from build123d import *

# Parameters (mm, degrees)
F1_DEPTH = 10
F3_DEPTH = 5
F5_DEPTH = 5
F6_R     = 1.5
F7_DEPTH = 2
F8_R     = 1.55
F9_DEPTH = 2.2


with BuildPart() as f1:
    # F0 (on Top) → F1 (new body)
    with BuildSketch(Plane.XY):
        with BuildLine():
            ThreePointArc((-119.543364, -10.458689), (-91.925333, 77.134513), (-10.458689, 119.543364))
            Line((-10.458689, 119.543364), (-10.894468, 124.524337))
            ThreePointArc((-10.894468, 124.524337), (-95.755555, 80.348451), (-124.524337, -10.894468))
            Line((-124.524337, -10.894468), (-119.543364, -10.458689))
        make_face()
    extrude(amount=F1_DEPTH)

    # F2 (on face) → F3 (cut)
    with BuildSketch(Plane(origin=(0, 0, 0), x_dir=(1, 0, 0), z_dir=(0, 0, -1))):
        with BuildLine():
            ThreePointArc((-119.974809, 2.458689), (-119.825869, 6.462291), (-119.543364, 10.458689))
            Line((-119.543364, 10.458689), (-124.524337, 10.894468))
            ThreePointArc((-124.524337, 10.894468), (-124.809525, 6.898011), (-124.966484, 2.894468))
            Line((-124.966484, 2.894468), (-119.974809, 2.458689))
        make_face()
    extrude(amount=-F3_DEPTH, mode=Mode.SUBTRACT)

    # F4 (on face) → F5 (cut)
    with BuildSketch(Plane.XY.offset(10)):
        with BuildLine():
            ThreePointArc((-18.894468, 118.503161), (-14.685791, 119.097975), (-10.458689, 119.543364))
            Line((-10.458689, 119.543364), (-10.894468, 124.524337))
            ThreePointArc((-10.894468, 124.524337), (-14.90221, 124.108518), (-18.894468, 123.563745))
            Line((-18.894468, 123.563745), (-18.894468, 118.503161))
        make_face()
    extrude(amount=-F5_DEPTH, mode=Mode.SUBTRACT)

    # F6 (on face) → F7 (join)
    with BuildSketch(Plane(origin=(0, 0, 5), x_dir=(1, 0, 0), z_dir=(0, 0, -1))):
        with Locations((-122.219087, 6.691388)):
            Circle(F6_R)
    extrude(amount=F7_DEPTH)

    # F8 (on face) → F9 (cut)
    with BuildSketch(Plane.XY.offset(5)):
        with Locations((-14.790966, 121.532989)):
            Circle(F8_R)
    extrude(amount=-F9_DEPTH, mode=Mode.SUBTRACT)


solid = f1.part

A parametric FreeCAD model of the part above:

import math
import FreeCAD as App
import Part
import Sketcher

V = App.Vector
Q = App.Units.Quantity

doc = App.newDocument("Part")
body = doc.addObject("PartDesign::Body", "Body")

# Sketch on XY plane
sketch1 = body.newObject("Sketcher::SketchObject", "Sketch")
sketch1.AttachmentSupport = (doc.getObject("XY_Plane"), [""])
sketch1.MapMode = "FlatFace"
sketch1.addGeometry(Part.ArcOfCircle(Part.Circle(V(0, 0, 0), V(0, 0, 1), 120), math.radians(95), math.radians(185)), False)
sketch1.addGeometry(Part.LineSegment(V(-10.5, 119.5, 0), V(-10.9, 124.5, 0)), False)
sketch1.addGeometry(Part.ArcOfCircle(Part.Circle(V(0, 0, 0), V(0, 0, 1), 125), math.radians(95), math.radians(185)), False)
sketch1.addGeometry(Part.LineSegment(V(-124.5, -10.9, 0), V(-119.5, -10.5, 0)), False)
sketch1.addConstraint(Sketcher.Constraint("Coincident", 0, 1, 1, 1))
sketch1.addConstraint(Sketcher.Constraint("Coincident", 1, 2, 2, 1))
sketch1.addConstraint(Sketcher.Constraint("Coincident", 2, 2, 3, 1))
sketch1.addConstraint(Sketcher.Constraint("Coincident", 3, 2, 0, 2))
sketch1.addConstraint(Sketcher.Constraint("Coincident", 0, 3, -1, 1))
sketch1.addConstraint(Sketcher.Constraint("Coincident", 2, 3, -1, 1))
sketch1.addConstraint(Sketcher.Constraint("Perpendicular", 1, 3))
sketch1.addConstraint(Sketcher.Constraint("Radius", 0, 120.000001))
sketch1.addConstraint(Sketcher.Constraint("Radius", 2, 125.0))
sketch1.addConstraint(Sketcher.Constraint("Angle", 1, Q("95.000004 deg")))
sketch1.addConstraint(Sketcher.Constraint("DistanceX", 0, 1, -1, 1, 10.458689))
sketch1.addConstraint(Sketcher.Constraint("DistanceY", 3, 2, -1, 1, 10.458689))
pad1 = body.newObject("PartDesign::Pad", "Pad")
pad1.Profile = sketch1
pad1.Length = 10

# Sketch on XY plane
sketch2 = body.newObject("Sketcher::SketchObject", "Sketch001")
sketch2.AttachmentSupport = (doc.getObject("XY_Plane"), [""])
sketch2.MapMode = "FlatFace"
sketch2.addGeometry(Part.ArcOfCircle(Part.Circle(V(0, 0, 0), V(0, 0, 1), 120), math.radians(-178.83), math.radians(-175)), False)
sketch2.addGeometry(Part.LineSegment(V(-119.5, -10.5, 0), V(-124.5, -10.9, 0)), False)
sketch2.addGeometry(Part.ArcOfCircle(Part.Circle(V(0, 0, 0), V(0, 0, 1), 125), math.radians(-178.67), math.radians(-175)), False)
sketch2.addGeometry(Part.LineSegment(V(-125, -2.9, 0), V(-120, -2.5, 0)), False)
sketch2.addConstraint(Sketcher.Constraint("Coincident", 0, 2, 1, 1))
sketch2.addConstraint(Sketcher.Constraint("Coincident", 1, 2, 2, 2))
sketch2.addConstraint(Sketcher.Constraint("Coincident", 2, 1, 3, 1))
sketch2.addConstraint(Sketcher.Constraint("Coincident", 3, 2, 0, 1))
sketch2.addConstraint(Sketcher.Constraint("Angle", 1, Q("-174.999996 deg")))
sketch2.addConstraint(Sketcher.Constraint("Distance", 1, 5.0))
sketch2.addConstraint(Sketcher.Constraint("DistanceY", 1, 2, 2, 1, 8.0))
sketch2.addConstraint(Sketcher.Constraint("DistanceY", 0, 2, 3, 2, 8.0))
sketch2.addConstraint(Sketcher.Constraint("Radius", 0, 119.999346))
sketch2.addConstraint(Sketcher.Constraint("Radius", 2, 124.999353))
sketch2.addConstraint(Sketcher.Constraint("Distance", 3, 5.010661))
sketch2.addConstraint(Sketcher.Constraint("DistanceY", 0, 2, -1, 1, 10.458689))
sketch2.addConstraint(Sketcher.Constraint("DistanceX", 3, 2, -1, 1, 119.974809))
sketch2.addConstraint(Sketcher.Constraint("DistanceX", 0, 2, 0, 3, 119.542711))
pocket1 = body.newObject("PartDesign::Pocket", "Pocket")
pocket1.Profile = sketch2
pocket1.Length = 5
pocket1.Reversed = True

# Sketch on XY plane
sketch3 = body.newObject("Sketcher::SketchObject", "Sketch002")
sketch3.AttachmentSupport = (doc.getObject("XY_Plane"), [""])
sketch3.MapMode = "FlatFace"
sketch3.AttachmentOffset = App.Placement(V(0, 0, 10), App.Rotation())
sketch3.addGeometry(Part.ArcOfCircle(Part.Circle(V(0, 0, 0), V(0, 0, 1), 120), math.radians(95), math.radians(99.06)), False)
sketch3.addGeometry(Part.LineSegment(V(-10.5, 119.5, 0), V(-10.9, 124.5, 0)), False)
sketch3.addGeometry(Part.ArcOfCircle(Part.Circle(V(0, 0, 0), V(0, 0, 1), 125), math.radians(95), math.radians(98.69)), False)
sketch3.addGeometry(Part.LineSegment(V(-18.9, 123.6, 0), V(-18.9, 118.5, 0)), False)
sketch3.addConstraint(Sketcher.Constraint("Coincident", 0, 1, 1, 1))
sketch3.addConstraint(Sketcher.Constraint("Coincident", 1, 2, 2, 1))
sketch3.addConstraint(Sketcher.Constraint("Coincident", 2, 2, 3, 1))
sketch3.addConstraint(Sketcher.Constraint("Coincident", 3, 2, 0, 2))
sketch3.addConstraint(Sketcher.Constraint("Vertical", 3))
sketch3.addConstraint(Sketcher.Constraint("Angle", 1, Q("95.000004 deg")))
sketch3.addConstraint(Sketcher.Constraint("Distance", 1, 5.0))
sketch3.addConstraint(Sketcher.Constraint("DistanceX", 2, 2, 1, 2, 8.0))
sketch3.addConstraint(Sketcher.Constraint("Radius", 0, 119.999759))
sketch3.addConstraint(Sketcher.Constraint("Radius", 2, 124.998967))
sketch3.addConstraint(Sketcher.Constraint("DistanceY", 3, 2, 3, 1, 5.060584))
sketch3.addConstraint(Sketcher.Constraint("DistanceY", -1, 1, 0, 3, 0.00024))
sketch3.addConstraint(Sketcher.Constraint("DistanceX", 0, 1, -1, 1, 10.458689))
sketch3.addConstraint(Sketcher.Constraint("DistanceY", -1, 1, 3, 2, 118.503161))
pocket2 = body.newObject("PartDesign::Pocket", "Pocket001")
pocket2.Profile = sketch3
pocket2.Length = 5

# Sketch on XY plane
sketch4 = body.newObject("Sketcher::SketchObject", "Sketch003")
sketch4.AttachmentSupport = (doc.getObject("XY_Plane"), [""])
sketch4.MapMode = "FlatFace"
sketch4.AttachmentOffset = App.Placement(V(0, 0, 5), App.Rotation())
sketch4.addGeometry(Part.Circle(V(-122.2, -6.7, 0), V(0, 0, 1), 1.5), False)
sketch4.addConstraint(Sketcher.Constraint("Diameter", 0, 3.0))
sketch4.addConstraint(Sketcher.Constraint("DistanceX", 0, 3, -1, 1, 122.219087))
sketch4.addConstraint(Sketcher.Constraint("DistanceY", 0, 3, -1, 1, 6.691388))
pad2 = body.newObject("PartDesign::Pad", "Pad001")
pad2.Profile = sketch4
pad2.Length = 2
pad2.Reversed = True

# Sketch on XY plane
sketch5 = body.newObject("Sketcher::SketchObject", "Sketch004")
sketch5.AttachmentSupport = (doc.getObject("XY_Plane"), [""])
sketch5.MapMode = "FlatFace"
sketch5.AttachmentOffset = App.Placement(V(0, 0, 5), App.Rotation())
sketch5.addGeometry(Part.Circle(V(-14.8, 121.5, 0), V(0, 0, 1), 1.6), False)
sketch5.addConstraint(Sketcher.Constraint("Diameter", 0, 3.1))
sketch5.addConstraint(Sketcher.Constraint("DistanceY", -1, 1, 0, 3, 121.532989))
sketch5.addConstraint(Sketcher.Constraint("DistanceX", 0, 3, -1, 1, 14.790966))
pocket3 = body.newObject("PartDesign::Pocket", "Pocket002")
pocket3.Profile = sketch5
pocket3.Length = 2.2

doc.recompute()
